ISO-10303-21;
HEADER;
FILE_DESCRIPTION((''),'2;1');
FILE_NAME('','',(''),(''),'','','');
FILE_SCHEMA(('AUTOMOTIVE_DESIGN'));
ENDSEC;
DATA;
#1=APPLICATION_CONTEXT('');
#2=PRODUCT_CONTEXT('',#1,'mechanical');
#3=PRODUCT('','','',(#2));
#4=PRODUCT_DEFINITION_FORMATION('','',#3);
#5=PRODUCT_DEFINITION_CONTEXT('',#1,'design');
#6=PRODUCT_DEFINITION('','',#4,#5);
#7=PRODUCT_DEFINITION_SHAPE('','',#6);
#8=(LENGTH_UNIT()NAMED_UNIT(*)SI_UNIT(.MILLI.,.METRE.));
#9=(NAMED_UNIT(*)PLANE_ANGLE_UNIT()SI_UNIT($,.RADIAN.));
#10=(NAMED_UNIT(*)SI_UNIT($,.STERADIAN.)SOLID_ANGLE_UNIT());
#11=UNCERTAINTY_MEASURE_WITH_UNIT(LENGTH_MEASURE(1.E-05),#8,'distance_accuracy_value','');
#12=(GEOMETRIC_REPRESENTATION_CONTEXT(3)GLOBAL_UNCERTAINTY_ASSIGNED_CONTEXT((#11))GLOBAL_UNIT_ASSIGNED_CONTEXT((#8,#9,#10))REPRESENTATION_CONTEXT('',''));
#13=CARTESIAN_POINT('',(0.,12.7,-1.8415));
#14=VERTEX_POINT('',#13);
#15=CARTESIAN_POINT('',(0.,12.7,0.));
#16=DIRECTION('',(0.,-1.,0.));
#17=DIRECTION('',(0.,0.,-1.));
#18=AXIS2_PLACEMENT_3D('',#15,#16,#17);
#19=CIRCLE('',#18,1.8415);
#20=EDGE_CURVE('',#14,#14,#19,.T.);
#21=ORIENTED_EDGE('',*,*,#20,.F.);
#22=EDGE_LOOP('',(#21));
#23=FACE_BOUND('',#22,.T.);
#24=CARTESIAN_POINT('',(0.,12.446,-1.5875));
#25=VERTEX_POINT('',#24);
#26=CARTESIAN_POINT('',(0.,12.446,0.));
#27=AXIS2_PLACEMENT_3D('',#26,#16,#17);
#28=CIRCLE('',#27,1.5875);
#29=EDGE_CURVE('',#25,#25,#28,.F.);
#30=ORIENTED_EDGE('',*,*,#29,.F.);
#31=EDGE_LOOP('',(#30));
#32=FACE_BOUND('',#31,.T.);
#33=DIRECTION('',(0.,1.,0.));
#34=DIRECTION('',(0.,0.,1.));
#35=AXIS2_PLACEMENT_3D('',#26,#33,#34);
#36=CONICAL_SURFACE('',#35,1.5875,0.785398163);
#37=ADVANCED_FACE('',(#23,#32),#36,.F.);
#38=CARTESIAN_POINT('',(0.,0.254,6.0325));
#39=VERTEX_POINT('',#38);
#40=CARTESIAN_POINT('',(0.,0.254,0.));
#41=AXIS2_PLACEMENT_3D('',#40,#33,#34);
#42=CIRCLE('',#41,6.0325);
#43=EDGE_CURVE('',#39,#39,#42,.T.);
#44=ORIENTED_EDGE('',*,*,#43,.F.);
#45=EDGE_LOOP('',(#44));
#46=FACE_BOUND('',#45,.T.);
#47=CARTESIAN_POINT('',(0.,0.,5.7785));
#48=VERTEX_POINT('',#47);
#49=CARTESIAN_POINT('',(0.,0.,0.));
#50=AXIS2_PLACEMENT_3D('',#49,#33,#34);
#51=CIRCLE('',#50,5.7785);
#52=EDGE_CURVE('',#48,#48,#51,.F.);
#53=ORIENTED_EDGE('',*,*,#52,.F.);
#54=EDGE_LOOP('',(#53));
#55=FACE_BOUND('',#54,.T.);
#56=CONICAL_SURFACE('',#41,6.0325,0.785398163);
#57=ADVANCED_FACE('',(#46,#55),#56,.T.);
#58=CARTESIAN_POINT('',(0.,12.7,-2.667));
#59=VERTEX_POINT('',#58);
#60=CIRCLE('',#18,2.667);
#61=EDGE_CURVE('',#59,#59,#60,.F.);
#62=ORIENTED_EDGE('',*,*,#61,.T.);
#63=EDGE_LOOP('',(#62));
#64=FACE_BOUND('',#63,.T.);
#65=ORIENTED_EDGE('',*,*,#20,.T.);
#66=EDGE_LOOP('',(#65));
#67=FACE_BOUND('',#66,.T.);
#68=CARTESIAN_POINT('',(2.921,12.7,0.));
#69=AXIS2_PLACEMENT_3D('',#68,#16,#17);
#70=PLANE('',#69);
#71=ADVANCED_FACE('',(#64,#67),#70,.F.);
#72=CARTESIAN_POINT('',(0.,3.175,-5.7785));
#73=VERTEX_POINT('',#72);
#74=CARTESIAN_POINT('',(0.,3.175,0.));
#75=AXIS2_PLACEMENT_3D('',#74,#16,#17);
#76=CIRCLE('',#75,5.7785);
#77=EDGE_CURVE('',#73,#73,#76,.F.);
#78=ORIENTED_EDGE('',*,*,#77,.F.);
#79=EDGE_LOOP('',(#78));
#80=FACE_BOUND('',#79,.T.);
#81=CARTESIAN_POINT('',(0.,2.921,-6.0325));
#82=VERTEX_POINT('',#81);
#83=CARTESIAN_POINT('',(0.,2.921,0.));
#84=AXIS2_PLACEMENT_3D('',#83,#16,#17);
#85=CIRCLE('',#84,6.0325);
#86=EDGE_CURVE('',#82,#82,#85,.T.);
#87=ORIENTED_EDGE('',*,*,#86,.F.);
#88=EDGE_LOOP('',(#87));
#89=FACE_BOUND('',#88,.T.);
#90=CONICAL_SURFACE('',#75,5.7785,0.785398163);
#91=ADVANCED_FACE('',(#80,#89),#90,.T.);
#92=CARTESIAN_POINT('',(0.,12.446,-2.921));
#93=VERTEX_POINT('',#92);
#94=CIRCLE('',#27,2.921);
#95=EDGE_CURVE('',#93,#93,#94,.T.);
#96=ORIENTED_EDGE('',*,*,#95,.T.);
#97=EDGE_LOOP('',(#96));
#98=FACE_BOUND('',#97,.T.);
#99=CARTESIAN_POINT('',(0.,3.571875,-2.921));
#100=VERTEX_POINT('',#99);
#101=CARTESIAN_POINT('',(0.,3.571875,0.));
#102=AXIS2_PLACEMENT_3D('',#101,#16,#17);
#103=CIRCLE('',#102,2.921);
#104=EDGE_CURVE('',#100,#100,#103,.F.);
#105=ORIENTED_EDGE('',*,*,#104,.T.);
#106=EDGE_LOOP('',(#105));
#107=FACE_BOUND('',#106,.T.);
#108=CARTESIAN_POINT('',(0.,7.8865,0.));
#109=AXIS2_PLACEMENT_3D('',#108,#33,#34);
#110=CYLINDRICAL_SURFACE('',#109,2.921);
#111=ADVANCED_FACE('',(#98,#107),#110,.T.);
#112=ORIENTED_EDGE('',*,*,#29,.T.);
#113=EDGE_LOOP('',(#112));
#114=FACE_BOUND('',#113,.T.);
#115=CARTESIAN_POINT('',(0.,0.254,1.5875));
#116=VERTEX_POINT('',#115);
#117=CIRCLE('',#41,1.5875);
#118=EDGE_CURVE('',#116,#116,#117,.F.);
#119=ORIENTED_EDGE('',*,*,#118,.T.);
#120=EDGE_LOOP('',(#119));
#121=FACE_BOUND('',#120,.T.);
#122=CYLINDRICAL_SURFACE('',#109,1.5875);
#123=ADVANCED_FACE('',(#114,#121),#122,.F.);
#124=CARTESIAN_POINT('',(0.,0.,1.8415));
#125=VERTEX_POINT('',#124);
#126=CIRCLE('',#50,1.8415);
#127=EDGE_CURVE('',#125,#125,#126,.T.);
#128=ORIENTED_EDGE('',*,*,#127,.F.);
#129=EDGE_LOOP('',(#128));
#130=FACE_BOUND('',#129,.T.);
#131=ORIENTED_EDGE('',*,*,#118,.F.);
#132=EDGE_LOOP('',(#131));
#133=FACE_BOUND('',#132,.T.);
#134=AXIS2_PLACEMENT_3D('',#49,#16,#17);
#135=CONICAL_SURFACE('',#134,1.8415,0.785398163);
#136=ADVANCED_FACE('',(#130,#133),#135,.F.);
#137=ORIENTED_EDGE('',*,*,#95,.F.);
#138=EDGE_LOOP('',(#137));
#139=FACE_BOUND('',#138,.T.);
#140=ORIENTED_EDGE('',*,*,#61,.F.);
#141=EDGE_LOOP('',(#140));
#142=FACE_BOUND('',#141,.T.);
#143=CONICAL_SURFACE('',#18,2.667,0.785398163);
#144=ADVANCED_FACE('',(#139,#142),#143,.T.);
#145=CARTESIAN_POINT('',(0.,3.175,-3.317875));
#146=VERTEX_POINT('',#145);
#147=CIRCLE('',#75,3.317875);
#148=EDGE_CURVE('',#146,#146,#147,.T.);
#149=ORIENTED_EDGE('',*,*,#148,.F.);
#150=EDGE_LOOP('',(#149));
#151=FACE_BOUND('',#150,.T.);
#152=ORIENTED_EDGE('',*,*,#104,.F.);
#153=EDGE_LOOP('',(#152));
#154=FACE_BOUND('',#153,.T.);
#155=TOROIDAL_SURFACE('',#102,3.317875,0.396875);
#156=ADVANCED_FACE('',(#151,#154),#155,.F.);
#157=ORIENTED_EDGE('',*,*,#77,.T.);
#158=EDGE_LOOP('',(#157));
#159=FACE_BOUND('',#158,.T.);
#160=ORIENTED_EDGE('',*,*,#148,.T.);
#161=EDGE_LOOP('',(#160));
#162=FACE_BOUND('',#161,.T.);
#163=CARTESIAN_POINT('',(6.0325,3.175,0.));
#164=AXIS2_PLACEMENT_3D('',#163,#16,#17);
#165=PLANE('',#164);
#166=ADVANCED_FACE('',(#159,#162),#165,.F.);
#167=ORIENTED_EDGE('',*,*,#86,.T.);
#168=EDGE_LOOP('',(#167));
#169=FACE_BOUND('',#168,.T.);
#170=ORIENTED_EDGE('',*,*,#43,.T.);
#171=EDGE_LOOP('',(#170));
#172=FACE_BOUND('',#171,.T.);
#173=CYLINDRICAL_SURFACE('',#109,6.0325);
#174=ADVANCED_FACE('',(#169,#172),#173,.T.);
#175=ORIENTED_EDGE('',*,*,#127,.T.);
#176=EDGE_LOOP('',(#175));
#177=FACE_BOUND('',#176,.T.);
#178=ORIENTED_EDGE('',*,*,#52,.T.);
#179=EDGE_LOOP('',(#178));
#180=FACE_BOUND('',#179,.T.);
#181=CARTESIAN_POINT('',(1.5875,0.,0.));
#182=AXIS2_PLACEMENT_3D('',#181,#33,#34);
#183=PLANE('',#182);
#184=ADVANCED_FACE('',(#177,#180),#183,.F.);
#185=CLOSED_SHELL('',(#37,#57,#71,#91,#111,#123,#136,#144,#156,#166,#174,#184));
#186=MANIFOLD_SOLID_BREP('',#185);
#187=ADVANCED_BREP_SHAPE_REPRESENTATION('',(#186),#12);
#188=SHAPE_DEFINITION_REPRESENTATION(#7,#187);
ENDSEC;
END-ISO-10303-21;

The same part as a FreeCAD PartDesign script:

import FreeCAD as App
import Part
import Sketcher
from FreeCAD import Vector
Q = App.Units.Quantity


def edges_at(feature, points):
    """Names of the edges that pass closest to the given points."""
    edges = feature.Shape.Edges
    near = lambda p: min(range(len(edges)), key=lambda i: edges[i].distToShape(Part.Vertex(*p))[0])
    return sorted({f"Edge{near(p) + 1}" for p in points})

doc = App.newDocument("Part")
body = doc.addObject("PartDesign::Body", "Body")

sketch1 = body.newObject("Sketcher::SketchObject", "Sketch")
sketch1.AttachmentSupport = (doc.getObject("XY_Plane"), [""])
sketch1.MapMode = "FlatFace"
sketch1.addGeometry([
    Part.LineSegment(Vector(1.6, 0, 0), Vector(6, 0, 0)),
    Part.LineSegment(Vector(6, 0, 0), Vector(6, 3.2, 0)),
    Part.LineSegment(Vector(6, 3.2, 0), Vector(2.9, 3.2, 0)),
    Part.LineSegment(Vector(2.9, 3.2, 0), Vector(2.9, 12.7, 0)),
    Part.LineSegment(Vector(2.9, 12.7, 0), Vector(1.6, 12.7, 0)),
    Part.LineSegment(Vector(1.6, 12.7, 0), Vector(1.6, 0, 0)),
], False)
sketch1.addConstraint([
    Sketcher.Constraint("Coincident", 0, 2, 1, 1),
    Sketcher.Constraint("Coincident", 1, 2, 2, 1),
    Sketcher.Constraint("Coincident", 2, 2, 3, 1),
    Sketcher.Constraint("Coincident", 3, 2, 4, 1),
    Sketcher.Constraint("Coincident", 4, 2, 5, 1),
    Sketcher.Constraint("Coincident", 5, 2, 0, 1),
    Sketcher.Constraint("Horizontal", 0),
    Sketcher.Constraint("Vertical", 1),
    Sketcher.Constraint("Horizontal", 2),
    Sketcher.Constraint("Vertical", 3),
    Sketcher.Constraint("Horizontal", 4),
    Sketcher.Constraint("Vertical", 5),
    Sketcher.Constraint("PointOnObject", 0, 2, -1),
    Sketcher.Constraint("DistanceY", 5, 2, 5, 1, Q("0.5 in")),
    Sketcher.Constraint("DistanceX", 0, 1, 0, 2, Q("0.175 in")),
    Sketcher.Constraint("DistanceY", 1, 1, 1, 2, Q("0.125 in")),
    Sketcher.Constraint("DistanceX", 2, 2, 2, 1, Q("0.1225 in")),
    Sketcher.Constraint("DistanceX", -1, 1, 2, 2, Q("0.115 in")),
])
revolution = body.newObject("PartDesign::Revolution", "Revolution")
revolution.Profile = sketch1
revolution.ReferenceAxis = (sketch1, ["V_Axis"])
revolution.Angle = 360
doc.recompute()

fillet = body.newObject("PartDesign::Fillet", "Fillet")
fillet.Base = (revolution, edges_at(revolution, [(-2.921, 3.175, 0)]))
fillet.Radius = Q("0.015625 in")
doc.recompute()

chamfer = body.newObject("PartDesign::Chamfer", "Chamfer")
chamfer.Base = (fillet, edges_at(fillet, [
    (-1.587, 12.7, 0),
    (-2.921, 12.7, 0),
    (-6.032, 3.175, 0),
    (-6.032, 0, 0),
    (-1.587, 0, 0),
]))
chamfer.Size = Q("0.01 in")

doc.recompute()
